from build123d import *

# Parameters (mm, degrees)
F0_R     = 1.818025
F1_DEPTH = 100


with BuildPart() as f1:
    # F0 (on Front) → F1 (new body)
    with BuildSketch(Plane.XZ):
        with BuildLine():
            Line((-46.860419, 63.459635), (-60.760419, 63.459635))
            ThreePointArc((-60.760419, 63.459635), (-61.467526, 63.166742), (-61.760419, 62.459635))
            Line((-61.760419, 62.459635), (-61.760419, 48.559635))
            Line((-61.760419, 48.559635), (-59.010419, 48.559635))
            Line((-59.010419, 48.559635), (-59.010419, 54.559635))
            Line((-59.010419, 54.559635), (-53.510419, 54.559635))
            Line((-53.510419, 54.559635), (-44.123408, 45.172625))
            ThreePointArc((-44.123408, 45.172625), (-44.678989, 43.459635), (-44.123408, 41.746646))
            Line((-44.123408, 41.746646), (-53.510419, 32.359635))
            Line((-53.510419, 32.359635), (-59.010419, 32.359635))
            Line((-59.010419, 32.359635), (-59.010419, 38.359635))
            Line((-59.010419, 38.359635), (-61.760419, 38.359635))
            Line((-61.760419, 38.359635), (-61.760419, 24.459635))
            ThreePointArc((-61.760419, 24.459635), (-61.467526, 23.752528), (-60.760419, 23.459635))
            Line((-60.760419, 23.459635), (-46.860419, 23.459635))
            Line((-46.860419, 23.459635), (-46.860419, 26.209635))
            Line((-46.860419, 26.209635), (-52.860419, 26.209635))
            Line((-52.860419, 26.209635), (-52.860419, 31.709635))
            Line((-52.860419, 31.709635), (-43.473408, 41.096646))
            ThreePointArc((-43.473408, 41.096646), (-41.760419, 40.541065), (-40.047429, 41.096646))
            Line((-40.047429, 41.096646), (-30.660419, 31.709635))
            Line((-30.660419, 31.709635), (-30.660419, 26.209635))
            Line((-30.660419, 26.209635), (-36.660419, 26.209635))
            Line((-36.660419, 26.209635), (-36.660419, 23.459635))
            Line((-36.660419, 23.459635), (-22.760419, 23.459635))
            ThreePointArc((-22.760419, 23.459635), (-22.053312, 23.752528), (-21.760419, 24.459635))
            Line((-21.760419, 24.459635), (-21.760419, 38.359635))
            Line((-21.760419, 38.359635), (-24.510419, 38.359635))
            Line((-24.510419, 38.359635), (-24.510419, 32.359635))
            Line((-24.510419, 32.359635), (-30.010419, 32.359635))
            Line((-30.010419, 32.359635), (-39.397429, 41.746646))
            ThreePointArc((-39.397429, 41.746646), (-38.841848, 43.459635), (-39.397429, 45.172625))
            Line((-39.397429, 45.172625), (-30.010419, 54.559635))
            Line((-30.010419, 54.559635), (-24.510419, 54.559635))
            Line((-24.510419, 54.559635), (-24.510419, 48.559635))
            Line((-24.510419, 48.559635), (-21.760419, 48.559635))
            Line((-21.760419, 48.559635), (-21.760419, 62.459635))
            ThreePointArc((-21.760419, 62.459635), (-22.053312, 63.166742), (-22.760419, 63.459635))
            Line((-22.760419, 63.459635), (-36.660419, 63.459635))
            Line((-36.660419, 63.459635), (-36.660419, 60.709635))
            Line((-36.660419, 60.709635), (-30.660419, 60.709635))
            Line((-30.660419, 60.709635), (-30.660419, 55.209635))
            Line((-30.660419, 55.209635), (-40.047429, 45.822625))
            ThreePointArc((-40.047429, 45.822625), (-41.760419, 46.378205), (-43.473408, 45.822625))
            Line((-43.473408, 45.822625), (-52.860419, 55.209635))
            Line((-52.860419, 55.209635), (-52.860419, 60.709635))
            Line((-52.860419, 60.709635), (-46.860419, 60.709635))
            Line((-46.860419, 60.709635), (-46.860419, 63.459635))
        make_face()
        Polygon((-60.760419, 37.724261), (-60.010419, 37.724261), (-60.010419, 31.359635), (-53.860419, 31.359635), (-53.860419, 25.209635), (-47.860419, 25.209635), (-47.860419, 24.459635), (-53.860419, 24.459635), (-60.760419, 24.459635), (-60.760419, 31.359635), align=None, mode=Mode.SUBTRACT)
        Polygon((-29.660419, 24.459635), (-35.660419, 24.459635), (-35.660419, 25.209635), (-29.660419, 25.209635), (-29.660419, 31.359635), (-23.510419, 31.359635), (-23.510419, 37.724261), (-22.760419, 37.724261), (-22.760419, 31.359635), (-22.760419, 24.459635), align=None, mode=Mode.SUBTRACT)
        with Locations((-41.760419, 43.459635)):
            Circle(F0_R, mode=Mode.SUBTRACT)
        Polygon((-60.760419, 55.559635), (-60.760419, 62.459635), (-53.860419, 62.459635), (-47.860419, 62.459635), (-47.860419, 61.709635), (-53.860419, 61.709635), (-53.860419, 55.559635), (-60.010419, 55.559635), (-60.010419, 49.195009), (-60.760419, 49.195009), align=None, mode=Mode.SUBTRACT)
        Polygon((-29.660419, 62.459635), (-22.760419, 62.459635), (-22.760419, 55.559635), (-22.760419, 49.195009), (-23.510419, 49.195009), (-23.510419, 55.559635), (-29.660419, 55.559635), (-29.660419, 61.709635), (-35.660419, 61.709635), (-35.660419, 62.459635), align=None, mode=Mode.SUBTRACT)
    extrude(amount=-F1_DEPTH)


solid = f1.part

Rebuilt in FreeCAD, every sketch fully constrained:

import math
import FreeCAD as App
import Part
import Sketcher
from FreeCAD import Vector
Q = App.Units.Quantity


def add_polygon(sketch, points):
    """Adds a closed chain of lines whose ends are joined by coincident constraints."""
    first, n = sketch.GeometryCount, len(points)
    for a, b in zip(points, points[1:] + points[:1]):
        sketch.addGeometry(Part.LineSegment(App.Vector(*a, 0), App.Vector(*b, 0)), False)
    for i in range(n):
        sketch.addConstraint(Sketcher.Constraint("Coincident", first + i, 2, first + (i + 1) % n, 1))

doc = App.newDocument("Part")
body = doc.addObject("PartDesign::Body", "Body")

sketch1 = body.newObject("Sketcher::SketchObject", "Sketch")
sketch1.AttachmentSupport = (doc.getObject("XZ_Plane"), [""])
sketch1.MapMode = "FlatFace"
sketch1.addGeometry(Part.LineSegment(Vector(-46.860419, 63.459635, 0), Vector(-60.760419, 63.459635, 0)), False)
sketch1.addGeometry(Part.ArcOfCircle(Part.Circle(Vector(-60.76042, 62.459636, 0), Vector(0, 0, 1), 0.999999), math.radians(89.999957), math.radians(180.000043)), False)
sketch1.addGeometry(Part.LineSegment(Vector(-61.760419, 62.459635, 0), Vector(-61.760419, 48.559635, 0)), False)
sketch1.addGeometry(Part.LineSegment(Vector(-61.760419, 48.559635, 0), Vector(-59.010419, 48.559635, 0)), False)
sketch1.addGeometry(Part.LineSegment(Vector(-59.010419, 48.559635, 0), Vector(-59.010419, 54.559635, 0)), False)
sketch1.addGeometry(Part.LineSegment(Vector(-59.010419, 54.559635, 0), Vector(-53.510419, 54.559635, 0)), False)
sketch1.addGeometry(Part.LineSegment(Vector(-53.510419, 54.559635, 0), Vector(-44.123408, 45.172625, 0)), False)
sketch1.addGeometry(Part.ArcOfCircle(Part.Circle(Vector(-41.76042, 43.459635, 0), Vector(0, 0, 1), 2.918569), math.radians(144.060701), math.radians(215.939299)), False)
sketch1.addGeometry(Part.LineSegment(Vector(-44.123408, 41.746646, 0), Vector(-53.510419, 32.359635, 0)), False)
sketch1.addGeometry(Part.LineSegment(Vector(-53.510419, 32.359635, 0), Vector(-59.010419, 32.359635, 0)), False)
sketch1.addGeometry(Part.LineSegment(Vector(-59.010419, 32.359635, 0), Vector(-59.010419, 38.359635, 0)), False)
sketch1.addGeometry(Part.LineSegment(Vector(-59.010419, 38.359635, 0), Vector(-61.760419, 38.359635, 0)), False)
sketch1.addGeometry(Part.LineSegment(Vector(-61.760419, 38.359635, 0), Vector(-61.760419, 24.459635, 0)), False)
sketch1.addGeometry(Part.ArcOfCircle(Part.Circle(Vector(-60.76042, 24.459634, 0), Vector(0, 0, 1), 0.999999), math.radians(179.999957), math.radians(270.000043)), False)
sketch1.addGeometry(Part.LineSegment(Vector(-60.760419, 23.459635, 0), Vector(-46.860419, 23.459635, 0)), False)
sketch1.addGeometry(Part.LineSegment(Vector(-46.860419, 23.459635, 0), Vector(-46.860419, 26.209635, 0)), False)
sketch1.addGeometry(Part.LineSegment(Vector(-46.860419, 26.209635, 0), Vector(-52.860419, 26.209635, 0)), False)
sketch1.addGeometry(Part.LineSegment(Vector(-52.860419, 26.209635, 0), Vector(-52.860419, 31.709635, 0)), False)
sketch1.addGeometry(Part.LineSegment(Vector(-52.860419, 31.709635, 0), Vector(-43.473408, 41.096646, 0)), False)
sketch1.addGeometry(Part.ArcOfCircle(Part.Circle(Vector(-41.760419, 43.459634, 0), Vector(0, 0, 1), 2.918569), math.radians(-125.939299), math.radians(-54.060701)), False)
sketch1.addGeometry(Part.LineSegment(Vector(-40.047429, 41.096646, 0), Vector(-30.660419, 31.709635, 0)), False)
sketch1.addGeometry(Part.LineSegment(Vector(-30.660419, 31.709635, 0), Vector(-30.660419, 26.209635, 0)), False)
sketch1.addGeometry(Part.LineSegment(Vector(-30.660419, 26.209635, 0), Vector(-36.660419, 26.209635, 0)), False)
sketch1.addGeometry(Part.LineSegment(Vector(-36.660419, 26.209635, 0), Vector(-36.660419, 23.459635, 0)), False)
sketch1.addGeometry(Part.LineSegment(Vector(-36.660419, 23.459635, 0), Vector(-22.760419, 23.459635, 0)), False)
sketch1.addGeometry(Part.ArcOfCircle(Part.Circle(Vector(-22.760418, 24.459634, 0), Vector(0, 0, 1), 0.999999), math.radians(-90.000043), math.radians(0.000043)), False)
sketch1.addGeometry(Part.LineSegment(Vector(-21.760419, 24.459635, 0), Vector(-21.760419, 38.359635, 0)), False)
sketch1.addGeometry(Part.LineSegment(Vector(-21.760419, 38.359635, 0), Vector(-24.510419, 38.359635, 0)), False)
sketch1.addGeometry(Part.LineSegment(Vector(-24.510419, 38.359635, 0), Vector(-24.510419, 32.359635, 0)), False)
sketch1.addGeometry(Part.LineSegment(Vector(-24.510419, 32.359635, 0), Vector(-30.010419, 32.359635, 0)), False)
sketch1.addGeometry(Part.LineSegment(Vector(-30.010419, 32.359635, 0), Vector(-39.397429, 41.746646, 0)), False)
sketch1.addGeometry(Part.ArcOfCircle(Part.Circle(Vector(-41.760417, 43.459635, 0), Vector(0, 0, 1), 2.918569), math.radians(-35.939299), math.radians(35.939299)), False)
sketch1.addGeometry(Part.LineSegment(Vector(-39.397429, 45.172625, 0), Vector(-30.010419, 54.559635, 0)), False)
sketch1.addGeometry(Part.LineSegment(Vector(-30.010419, 54.559635, 0), Vector(-24.510419, 54.559635, 0)), False)
sketch1.addGeometry(Part.LineSegment(Vector(-24.510419, 54.559635, 0), Vector(-24.510419, 48.559635, 0)), False)
sketch1.addGeometry(Part.LineSegment(Vector(-24.510419, 48.559635, 0), Vector(-21.760419, 48.559635, 0)), False)
sketch1.addGeometry(Part.LineSegment(Vector(-21.760419, 48.559635, 0), Vector(-21.760419, 62.459635, 0)), False)
sketch1.addGeometry(Part.ArcOfCircle(Part.Circle(Vector(-22.760418, 62.459636, 0), Vector(0, 0, 1), 0.999999), math.radians(-0.000043), math.radians(90.000043)), False)
sketch1.addGeometry(Part.LineSegment(Vector(-22.760419, 63.459635, 0), Vector(-36.660419, 63.459635, 0)), False)
sketch1.addGeometry(Part.LineSegment(Vector(-36.660419, 63.459635, 0), Vector(-36.660419, 60.709635, 0)), False)
sketch1.addGeometry(Part.LineSegment(Vector(-36.660419, 60.709635, 0), Vector(-30.660419, 60.709635, 0)), False)
sketch1.addGeometry(Part.LineSegment(Vector(-30.660419, 60.709635, 0), Vector(-30.660419, 55.209635, 0)), False)
sketch1.addGeometry(Part.LineSegment(Vector(-30.660419, 55.209635, 0), Vector(-40.047429, 45.822625, 0)), False)
sketch1.addGeometry(Part.ArcOfCircle(Part.Circle(Vector(-41.760419, 43.459631, 0), Vector(0, 0, 1), 2.918574), math.radians(54.060762), math.radians(125.939238)), False)
sketch1.addGeometry(Part.LineSegment(Vector(-43.473408, 45.822625, 0), Vector(-52.860419, 55.209635, 0)), False)
sketch1.addGeometry(Part.LineSegment(Vector(-52.860419, 55.209635, 0), Vector(-52.860419, 60.709635, 0)), False)
sketch1.addGeometry(Part.LineSegment(Vector(-52.860419, 60.709635, 0), Vector(-46.860419, 60.709635, 0)), False)
sketch1.addGeometry(Part.LineSegment(Vector(-46.860419, 60.709635, 0), Vector(-46.860419, 63.459635, 0)), False)
add_polygon(sketch1, [(-60.760419, 24.459635), (-60.760419, 37.724261), (-60.010419, 37.724261), (-60.010419, 31.359635), (-53.860419, 31.359635), (-53.860419, 25.209635), (-47.860419, 25.209635), (-47.860419, 24.459635)])
add_polygon(sketch1, [(-22.760419, 24.459635), (-35.660419, 24.459635), (-35.660419, 25.209635), (-29.660419, 25.209635), (-29.660419, 31.359635), (-23.510419, 31.359635), (-23.510419, 37.724261), (-22.760419, 37.724261)])
add_polygon(sketch1, [(-60.760419, 49.195009), (-60.760419, 62.459635), (-47.860419, 62.459635), (-47.860419, 61.709635), (-53.860419, 61.709635), (-53.860419, 55.559635), (-60.010419, 55.559635), (-60.010419, 49.195009)])
sketch1.addGeometry(Part.Circle(Vector(-41.760419, 43.459635, 0), Vector(0, 0, 1), 1.818025), False)
add_polygon(sketch1, [(-35.660419, 62.459635), (-22.760419, 62.459635), (-22.760419, 49.195009), (-23.510419, 49.195009), (-23.510419, 55.559635), (-29.660419, 55.559635), (-29.660419, 61.709635), (-35.660419, 61.709635)])
sketch1.addConstraint([
    Sketcher.Constraint("Tangent", 0, 2, 1, 1),
    Sketcher.Constraint("Tangent", 1, 2, 2, 1),
    Sketcher.Constraint("Coincident", 2, 2, 3, 1),
    Sketcher.Constraint("Coincident", 3, 2, 4, 1),
    Sketcher.Constraint("Coincident", 4, 2, 5, 1),
    Sketcher.Constraint("Coincident", 5, 2, 6, 1),
    Sketcher.Constraint("Coincident", 6, 2, 7, 1),
    Sketcher.Constraint("Coincident", 7, 2, 8, 1),
    Sketcher.Constraint("Coincident", 8, 2, 9, 1),
    Sketcher.Constraint("Coincident", 9, 2, 10, 1),
    Sketcher.Constraint("Coincident", 10, 2, 11, 1),
    Sketcher.Constraint("Coincident", 11, 2, 12, 1),
    Sketcher.Constraint("Tangent", 12, 2, 13, 1),
    Sketcher.Constraint("Tangent", 13, 2, 14, 1),
    Sketcher.Constraint("Coincident", 14, 2, 15, 1),
    Sketcher.Constraint("Coincident", 15, 2, 16, 1),
    Sketcher.Constraint("Coincident", 16, 2, 17, 1),
    Sketcher.Constraint("Coincident", 17, 2, 18, 1),
    Sketcher.Constraint("Coincident", 18, 2, 19, 1),
    Sketcher.Constraint("Coincident", 19, 2, 20, 1),
    Sketcher.Constraint("Coincident", 20, 2, 21, 1),
    Sketcher.Constraint("Coincident", 21, 2, 22, 1),
    Sketcher.Constraint("Coincident", 22, 2, 23, 1),
    Sketcher.Constraint("Coincident", 23, 2, 24, 1),
    Sketcher.Constraint("Tangent", 24, 2, 25, 1),
    Sketcher.Constraint("Tangent", 25, 2, 26, 1),
    Sketcher.Constraint("Coincident", 26, 2, 27, 1),
    Sketcher.Constraint("Coincident", 27, 2, 28, 1),
    Sketcher.Constraint("Coincident", 28, 2, 29, 1),
    Sketcher.Constraint("Coincident", 29, 2, 30, 1),
    Sketcher.Constraint("Coincident", 30, 2, 31, 1),
    Sketcher.Constraint("Coincident", 31, 2, 32, 1),
    Sketcher.Constraint("Coincident", 32, 2, 33, 1),
    Sketcher.Constraint("Coincident", 33, 2, 34, 1),
    Sketcher.Constraint("Coincident", 34, 2, 35, 1),
    Sketcher.Constraint("Coincident", 35, 2, 36, 1),
    Sketcher.Constraint("Tangent", 36, 2, 37, 1),
    Sketcher.Constraint("Tangent", 37, 2, 38, 1),
    Sketcher.Constraint("Coincident", 38, 2, 39, 1),
    Sketcher.Constraint("Coincident", 39, 2, 40, 1),
    Sketcher.Constraint("Coincident", 40, 2, 41, 1),
    Sketcher.Constraint("Coincident", 41, 2, 42, 1),
    Sketcher.Constraint("Coincident", 42, 2, 43, 1),
    Sketcher.Constraint("Coincident", 43, 2, 44, 1),
    Sketcher.Constraint("Coincident", 44, 2, 45, 1),
    Sketcher.Constraint("Coincident", 45, 2, 46, 1),
    Sketcher.Constraint("Coincident", 46, 2, 47, 1),
    Sketcher.Constraint("Coincident", 47, 2, 0, 1),
    Sketcher.Constraint("Horizontal", 0),
    Sketcher.Constraint("Vertical", 2),
    Sketcher.Constraint("Horizontal", 3),
    Sketcher.Constraint("Vertical", 4),
    Sketcher.Constraint("Horizontal", 5),
    Sketcher.Constraint("Horizontal", 9),
    Sketcher.Constraint("Vertical", 10),
    Sketcher.Constraint("Horizontal", 11),
    Sketcher.Constraint("Vertical", 12),
    Sketcher.Constraint("Horizontal", 14),
    Sketcher.Constraint("Vertical", 15),
    Sketcher.Constraint("Horizontal", 16),
    Sketcher.Constraint("Vertical", 17),
    Sketcher.Constraint("Vertical", 21),
    Sketcher.Constraint("Horizontal", 22),
    Sketcher.Constraint("Vertical", 23),
    Sketcher.Constraint("Horizontal", 24),
    Sketcher.Constraint("Vertical", 26),
    Sketcher.Constraint("Horizontal", 27),
    Sketcher.Constraint("Vertical", 28),
    Sketcher.Constraint("Horizontal", 29),
    Sketcher.Constraint("Horizontal", 33),
    Sketcher.Constraint("Vertical", 34),
    Sketcher.Constraint("Horizontal", 35),
    Sketcher.Constraint("Vertical", 36),
    Sketcher.Constraint("Horizontal", 38),
    Sketcher.Constraint("Vertical", 39),
    Sketcher.Constraint("Horizontal", 40),
    Sketcher.Constraint("Vertical", 41),
    Sketcher.Constraint("Vertical", 45),
    Sketcher.Constraint("Horizontal", 46),
    Sketcher.Constraint("Vertical", 47),
    Sketcher.Constraint("Vertical", 48),
    Sketcher.Constraint("Horizontal", 49),
    Sketcher.Constraint("Vertical", 50),
    Sketcher.Constraint("Horizontal", 51),
    Sketcher.Constraint("Vertical", 52),
    Sketcher.Constraint("Horizontal", 53),
    Sketcher.Constraint("Vertical", 54),
    Sketcher.Constraint("Horizontal", 55),
    Sketcher.Constraint("Horizontal", 56),
    Sketcher.Constraint("Vertical", 57),
    Sketcher.Constraint("Horizontal", 58),
    Sketcher.Constraint("Vertical", 59),
    Sketcher.Constraint("Horizontal", 60),
    Sketcher.Constraint("Vertical", 61),
    Sketcher.Constraint("Horizontal", 62),
    Sketcher.Constraint("Vertical", 63),
    Sketcher.Constraint("Vertical", 64),
    Sketcher.Constraint("Horizontal", 65),
    Sketcher.Constraint("Vertical", 66),
    Sketcher.Constraint("Horizontal", 67),
    Sketcher.Constraint("Vertical", 68),
    Sketcher.Constraint("Horizontal", 69),
    Sketcher.Constraint("Vertical", 70),
    Sketcher.Constraint("Horizontal", 71),
    Sketcher.Constraint("Horizontal", 73),
    Sketcher.Constraint("Vertical", 74),
    Sketcher.Constraint("Horizontal", 75),
    Sketcher.Constraint("Vertical", 76),
    Sketcher.Constraint("Horizontal", 77),
    Sketcher.Constraint("Vertical", 78),
    Sketcher.Constraint("Horizontal", 79),
    Sketcher.Constraint("Vertical", 80),
    Sketcher.Constraint("Coincident", 19, 3, 7, 3),
    Sketcher.Constraint("Coincident", 31, 3, 7, 3),
    Sketcher.Constraint("Coincident", 43, 3, 7, 3),
    Sketcher.Constraint("Coincident", 72, 3, 7, 3),
    Sketcher.Constraint("Coincident", 55, 2, 13, 3),
    Sketcher.Constraint("Coincident", 63, 2, 25, 3),
    Sketcher.Constraint("Coincident", 64, 2, 1, 3),
    Sketcher.Constraint("Coincident", 73, 2, 37, 3),
    Sketcher.Constraint("Equal", 1, 13),
    Sketcher.Constraint("Equal", 7, 19),
    Sketcher.Constraint("Equal", 13, 25),
    Sketcher.Constraint("Equal", 19, 31),
    Sketcher.Constraint("Equal", 25, 37),
    Sketcher.Constraint("Perpendicular", 6, 8),
    Sketcher.Constraint("Parallel", 8, 18),
    Sketcher.Constraint("Perpendicular", 18, 20),
    Sketcher.Constraint("Parallel", 20, 30),
    Sketcher.Constraint("Perpendicular", 30, 32),
    Sketcher.Constraint("Parallel", 32, 42),
    Sketcher.Constraint("Perpendicular", 42, 44),
    Sketcher.Constraint("Horizontal", 13, 3, 25, 3),
    Sketcher.Constraint("Horizontal", 1, 3, 37, 3),
    Sketcher.Constraint("Horizontal", 18, 2, 19, 2),
    Sketcher.Constraint("Horizontal", 17, 2, 20, 2),
    Sketcher.Constraint("Horizontal", 16, 2, 21, 2),
    Sketcher.Constraint("Horizontal", 11, 2, 26, 2),
    Sketcher.Constraint("Horizontal", 9, 2, 28, 2),
    Sketcher.Constraint("Horizontal", 7, 2, 30, 2),
    Sketcher.Constraint("Horizontal", 6, 2, 31, 2),
    Sketcher.Constraint("Horizontal", 5, 2, 32, 2),
    Sketcher.Constraint("Horizontal", 3, 2, 34, 2),
    Sketcher.Constraint("Horizontal", 42, 2, 43, 2),
    Sketcher.Constraint("Horizontal", 41, 2, 44, 2),
    Sketcher.Constraint("Horizontal", 40, 2, 45, 2),
    Sketcher.Constraint("Horizontal", 53, 2, 57, 2),
    Sketcher.Constraint("Horizontal", 51, 2, 59, 2),
    Sketcher.Constraint("Horizontal", 49, 2, 61, 2),
    Sketcher.Constraint("Horizontal", 71, 2, 74, 2),
    Sketcher.Constraint("Horizontal", 69, 2, 76, 2),
    Sketcher.Constraint("Horizontal", 67, 2, 78, 2),
    Sketcher.Constraint("Vertical", 1, 3, 13, 3),
    Sketcher.Constraint("Vertical", 25, 3, 37, 3),
    Sketcher.Constraint("Vertical", 6, 2, 7, 2),
    Sketcher.Constraint("Vertical", 5, 2, 8, 2),
    Sketcher.Constraint("Vertical", 4, 2, 9, 2),
    Sketcher.Constraint("Vertical", 29, 2, 32, 2),
    Sketcher.Constraint("Vertical", 28, 2, 33, 2),
    Sketcher.Constraint("Vertical", 23, 2, 38, 2),
    Sketcher.Constraint("Vertical", 21, 2, 40, 2),
    Sketcher.Constraint("Vertical", 19, 2, 42, 2),
    Sketcher.Constraint("Vertical", 15, 2, 46, 2),
    Sketcher.Constraint("Vertical", 54, 2, 65, 2),
    Sketcher.Constraint("Vertical", 52, 2, 67, 2),
    Sketcher.Constraint("Vertical", 50, 2, 69, 2),
    Sketcher.Constraint("Vertical", 61, 2, 75, 2),
    Sketcher.Constraint("Vertical", 59, 2, 77, 2),
    Sketcher.Constraint("Vertical", 57, 2, 79, 2),
    Sketcher.Constraint("Equal", 16, 22),
    Sketcher.Constraint("Equal", 14, 24),
    Sketcher.Constraint("Equal", 11, 27),
    Sketcher.Constraint("Equal", 46, 53),
    Sketcher.Constraint("Equal", 55, 56),
    Sketcher.Constraint("Equal", 53, 58),
    Sketcher.Constraint("Equal", 51, 60),
    Sketcher.Constraint("Equal", 38, 2),
    Sketcher.Constraint("Equal", 79, 4),
    Sketcher.Constraint("Equal", 4, 10),
    Sketcher.Constraint("Equal", 2, 12),
    Sketcher.Constraint("Equal", 35, 15),
    Sketcher.Constraint("Equal", 33, 17),
    Sketcher.Constraint("Equal", 23, 39),
    Sketcher.Constraint("Equal", 21, 41),
    Sketcher.Constraint("Equal", 77, 52),
    Sketcher.Constraint("Equal", 75, 54),
    Sketcher.Constraint("Equal", 63, 64),
    Sketcher.Constraint("Equal", 57, 66),
    Sketcher.Constraint("Equal", 59, 68),
    Sketcher.Constraint("Equal", 8, 18),
    Sketcher.Constraint("Radius", 1, Q("0.999999 mm")),
    Sketcher.Constraint("DistanceX", 16, 2, 16, 1, Q("6 mm")),
    Sketcher.Constraint("DistanceX", 0, 2, 0, 1, Q("13.9 mm")),
    Sketcher.Constraint("DistanceX", 5, 1, 5, 2, Q("5.5 mm")),
    Sketcher.Constraint("DistanceX", 55, 2, 55, 1, Q("12.9 mm")),
    Sketcher.Constraint("DistanceX", 3, 1, 3, 2, Q("2.75 mm")),
    Sketcher.Constraint("DistanceX", 49, 1, 49, 2, Q("0.75 mm")),
    Sketcher.Constraint("Diameter", 72, Q("3.63605 mm")),
    Sketcher.Constraint("Radius", 7, Q("2.918569 mm")),
    Sketcher.Constraint("Distance", 8, Q("13.275238 mm")),
    Sketcher.Constraint("DistanceY", 48, 1, 48, 2, Q("13.264626 mm")),
    Sketcher.Constraint("DistanceX", 1, 3, -1, 1, Q("60.76042 mm")),
    Sketcher.Constraint("DistanceY", -1, 1, 43, 3, Q("43.459631 mm")),
])
pad1 = body.newObject("PartDesign::Pad", "Pad")
pad1.Profile = sketch1
pad1.Length = 100
pad1.Reversed = True

doc.recompute()
